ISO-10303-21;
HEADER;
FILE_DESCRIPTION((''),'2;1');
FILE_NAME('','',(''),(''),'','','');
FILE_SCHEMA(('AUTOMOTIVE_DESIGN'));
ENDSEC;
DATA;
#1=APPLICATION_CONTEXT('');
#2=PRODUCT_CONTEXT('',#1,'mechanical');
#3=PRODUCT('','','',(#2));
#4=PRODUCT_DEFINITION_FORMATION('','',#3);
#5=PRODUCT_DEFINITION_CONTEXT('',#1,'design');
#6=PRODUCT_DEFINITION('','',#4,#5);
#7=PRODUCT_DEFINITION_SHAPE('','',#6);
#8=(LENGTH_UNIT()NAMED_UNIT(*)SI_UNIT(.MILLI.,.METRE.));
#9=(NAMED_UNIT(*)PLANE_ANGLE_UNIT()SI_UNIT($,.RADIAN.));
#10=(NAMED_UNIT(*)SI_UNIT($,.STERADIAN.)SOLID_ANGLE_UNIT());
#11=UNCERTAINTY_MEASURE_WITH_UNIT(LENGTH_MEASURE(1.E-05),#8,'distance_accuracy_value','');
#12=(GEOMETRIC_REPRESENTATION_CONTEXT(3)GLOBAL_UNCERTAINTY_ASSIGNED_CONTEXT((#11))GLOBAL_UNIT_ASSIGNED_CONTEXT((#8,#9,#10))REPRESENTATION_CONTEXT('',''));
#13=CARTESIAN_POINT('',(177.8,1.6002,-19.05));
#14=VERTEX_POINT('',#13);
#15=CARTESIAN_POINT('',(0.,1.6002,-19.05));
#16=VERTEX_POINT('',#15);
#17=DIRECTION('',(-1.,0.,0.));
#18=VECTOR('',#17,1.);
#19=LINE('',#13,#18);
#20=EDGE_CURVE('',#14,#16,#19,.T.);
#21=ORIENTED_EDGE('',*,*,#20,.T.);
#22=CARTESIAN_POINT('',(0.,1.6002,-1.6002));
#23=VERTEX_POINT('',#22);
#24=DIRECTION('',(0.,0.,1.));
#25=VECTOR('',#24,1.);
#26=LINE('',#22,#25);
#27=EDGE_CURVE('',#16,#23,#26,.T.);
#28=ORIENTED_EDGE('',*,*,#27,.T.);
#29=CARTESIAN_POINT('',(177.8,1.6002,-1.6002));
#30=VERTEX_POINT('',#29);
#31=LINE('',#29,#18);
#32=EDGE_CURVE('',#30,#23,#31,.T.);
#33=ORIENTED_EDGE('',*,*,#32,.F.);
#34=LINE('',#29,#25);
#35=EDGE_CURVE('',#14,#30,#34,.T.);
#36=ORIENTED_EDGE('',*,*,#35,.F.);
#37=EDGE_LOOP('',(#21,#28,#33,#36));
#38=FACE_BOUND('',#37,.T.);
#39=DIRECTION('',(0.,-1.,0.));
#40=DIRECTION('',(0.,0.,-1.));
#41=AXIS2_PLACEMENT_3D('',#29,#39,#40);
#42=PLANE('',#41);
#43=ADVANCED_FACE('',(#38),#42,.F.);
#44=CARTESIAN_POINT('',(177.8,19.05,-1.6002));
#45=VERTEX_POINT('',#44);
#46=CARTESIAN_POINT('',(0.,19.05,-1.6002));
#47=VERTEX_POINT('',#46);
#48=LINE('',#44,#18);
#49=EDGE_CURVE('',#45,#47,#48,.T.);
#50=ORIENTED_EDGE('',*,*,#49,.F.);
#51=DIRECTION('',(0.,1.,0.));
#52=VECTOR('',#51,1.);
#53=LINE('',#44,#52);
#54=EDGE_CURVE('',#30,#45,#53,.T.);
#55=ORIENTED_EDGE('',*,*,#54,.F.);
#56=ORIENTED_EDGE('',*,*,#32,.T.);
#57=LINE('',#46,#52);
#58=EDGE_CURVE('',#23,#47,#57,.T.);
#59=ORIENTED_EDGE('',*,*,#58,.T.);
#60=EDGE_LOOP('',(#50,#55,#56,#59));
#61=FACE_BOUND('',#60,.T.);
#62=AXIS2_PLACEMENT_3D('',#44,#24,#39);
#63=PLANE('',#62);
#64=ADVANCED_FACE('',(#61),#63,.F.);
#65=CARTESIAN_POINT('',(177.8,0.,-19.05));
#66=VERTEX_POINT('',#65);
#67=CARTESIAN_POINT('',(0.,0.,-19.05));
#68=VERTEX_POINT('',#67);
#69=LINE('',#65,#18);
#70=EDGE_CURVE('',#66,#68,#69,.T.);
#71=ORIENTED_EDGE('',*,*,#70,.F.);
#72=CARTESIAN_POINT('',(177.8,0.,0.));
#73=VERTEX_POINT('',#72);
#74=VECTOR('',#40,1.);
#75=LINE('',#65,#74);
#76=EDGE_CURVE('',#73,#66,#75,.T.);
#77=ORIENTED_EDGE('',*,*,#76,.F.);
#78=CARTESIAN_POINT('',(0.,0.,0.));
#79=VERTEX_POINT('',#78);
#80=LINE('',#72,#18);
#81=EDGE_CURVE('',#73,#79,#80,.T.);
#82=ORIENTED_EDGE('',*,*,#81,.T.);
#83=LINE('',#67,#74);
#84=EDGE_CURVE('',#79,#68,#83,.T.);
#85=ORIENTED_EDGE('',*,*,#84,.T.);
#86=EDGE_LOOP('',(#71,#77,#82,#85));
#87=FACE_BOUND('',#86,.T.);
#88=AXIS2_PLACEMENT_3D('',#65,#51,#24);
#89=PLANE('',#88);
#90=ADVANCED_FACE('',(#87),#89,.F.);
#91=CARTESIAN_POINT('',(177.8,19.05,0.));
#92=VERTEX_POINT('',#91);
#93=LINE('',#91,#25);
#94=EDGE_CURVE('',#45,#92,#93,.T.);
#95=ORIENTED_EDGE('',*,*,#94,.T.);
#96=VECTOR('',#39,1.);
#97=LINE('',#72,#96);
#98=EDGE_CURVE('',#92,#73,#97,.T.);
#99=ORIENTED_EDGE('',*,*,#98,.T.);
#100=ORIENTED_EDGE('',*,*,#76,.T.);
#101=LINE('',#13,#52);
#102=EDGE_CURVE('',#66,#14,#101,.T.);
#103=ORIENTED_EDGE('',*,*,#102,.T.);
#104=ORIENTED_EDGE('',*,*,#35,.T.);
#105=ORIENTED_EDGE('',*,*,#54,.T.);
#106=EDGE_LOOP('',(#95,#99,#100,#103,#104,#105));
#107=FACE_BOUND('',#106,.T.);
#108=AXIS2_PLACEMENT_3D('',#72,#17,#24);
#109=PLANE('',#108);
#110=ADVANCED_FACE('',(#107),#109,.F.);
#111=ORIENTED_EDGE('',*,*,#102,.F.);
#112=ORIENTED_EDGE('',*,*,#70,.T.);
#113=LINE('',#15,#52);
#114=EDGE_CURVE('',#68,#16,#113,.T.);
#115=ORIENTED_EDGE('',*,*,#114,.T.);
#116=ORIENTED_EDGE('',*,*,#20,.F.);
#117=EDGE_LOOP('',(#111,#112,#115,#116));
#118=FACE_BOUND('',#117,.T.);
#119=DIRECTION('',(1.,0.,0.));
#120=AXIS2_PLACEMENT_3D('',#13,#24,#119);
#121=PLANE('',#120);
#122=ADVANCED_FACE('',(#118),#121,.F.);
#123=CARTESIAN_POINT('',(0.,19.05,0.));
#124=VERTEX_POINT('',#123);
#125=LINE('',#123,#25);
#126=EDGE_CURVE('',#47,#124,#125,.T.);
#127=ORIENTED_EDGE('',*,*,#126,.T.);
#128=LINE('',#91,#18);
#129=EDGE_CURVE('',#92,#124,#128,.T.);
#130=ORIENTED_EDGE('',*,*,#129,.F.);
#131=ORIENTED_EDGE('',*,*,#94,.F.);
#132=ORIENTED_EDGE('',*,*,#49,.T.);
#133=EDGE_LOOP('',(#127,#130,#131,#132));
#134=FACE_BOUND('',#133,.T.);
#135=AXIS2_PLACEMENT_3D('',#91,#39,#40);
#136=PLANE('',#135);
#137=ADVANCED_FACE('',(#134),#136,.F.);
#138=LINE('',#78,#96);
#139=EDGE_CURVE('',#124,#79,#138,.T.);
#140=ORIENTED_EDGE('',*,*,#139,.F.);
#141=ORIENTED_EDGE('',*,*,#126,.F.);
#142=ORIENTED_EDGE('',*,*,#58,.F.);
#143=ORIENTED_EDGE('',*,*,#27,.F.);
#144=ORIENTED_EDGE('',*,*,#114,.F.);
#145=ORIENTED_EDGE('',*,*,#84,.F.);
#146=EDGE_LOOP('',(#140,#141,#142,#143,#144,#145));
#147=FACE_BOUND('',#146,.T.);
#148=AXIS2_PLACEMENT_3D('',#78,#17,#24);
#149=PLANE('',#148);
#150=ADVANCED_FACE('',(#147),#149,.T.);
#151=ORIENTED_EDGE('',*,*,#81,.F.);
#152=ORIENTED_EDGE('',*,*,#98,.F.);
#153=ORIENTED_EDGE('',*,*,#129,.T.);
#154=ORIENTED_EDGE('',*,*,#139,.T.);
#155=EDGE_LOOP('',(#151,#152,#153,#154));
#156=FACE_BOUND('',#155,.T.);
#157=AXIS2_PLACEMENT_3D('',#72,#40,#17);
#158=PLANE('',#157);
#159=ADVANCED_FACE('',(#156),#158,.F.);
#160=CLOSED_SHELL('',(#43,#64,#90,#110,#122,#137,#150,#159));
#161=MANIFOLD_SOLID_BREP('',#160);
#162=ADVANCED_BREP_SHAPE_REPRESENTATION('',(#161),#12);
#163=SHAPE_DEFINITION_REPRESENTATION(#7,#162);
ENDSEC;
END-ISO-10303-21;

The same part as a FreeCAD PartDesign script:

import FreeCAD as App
import Part
import Sketcher
from FreeCAD import Vector
Q = App.Units.Quantity


def add_polygon(sketch, points):
    """Adds a closed chain of lines whose ends are joined by coincident constraints."""
    first, n = sketch.GeometryCount, len(points)
    for a, b in zip(points, points[1:] + points[:1]):
        sketch.addGeometry(Part.LineSegment(App.Vector(*a, 0), App.Vector(*b, 0)), False)
    for i in range(n):
        sketch.addConstraint(Sketcher.Constraint("Coincident", first + i, 2, first + (i + 1) % n, 1))

doc = App.newDocument("Part")
params = doc.addObject("Spreadsheet::Sheet", "Params")
for row, (alias, value) in enumerate([
    ("sketch1_width", "0.75 in"),
    ("sketch1_width2", "0.063 in"),
    ("pad1_length", "7 in"),
], start=1):
    params.set(f"A{row}", alias)
    params.set(f"B{row}", "=" + value)
    params.setAlias(f"B{row}", alias)

body = doc.addObject("PartDesign::Body", "Body")

# Sketch on YZ plane
sketch1 = body.newObject("Sketcher::SketchObject", "Sketch")
sketch1.AttachmentSupport = (doc.getObject("YZ_Plane"), [""])
sketch1.MapMode = "FlatFace"
add_polygon(sketch1, [(19.1, 0), (0, 0), (0, -19.1), (1.6, -19.1), (1.6, -1.6), (19.1, -1.6)])  # lines 0-5
sketch1.addConstraint(Sketcher.Constraint("Horizontal", 0))
sketch1.addConstraint(Sketcher.Constraint("Vertical", 1))
sketch1.addConstraint(Sketcher.Constraint("Horizontal", 2))
sketch1.addConstraint(Sketcher.Constraint("Vertical", 3))
sketch1.addConstraint(Sketcher.Constraint("Horizontal", 4))
sketch1.addConstraint(Sketcher.Constraint("Vertical", 5))
sketch1.addConstraint(Sketcher.Constraint("Coincident", 0, 2, -1, 1))
sketch1.addConstraint(Sketcher.Constraint("Equal", 0, 1))
sketch1.addConstraint(Sketcher.Constraint("Equal", 4, 3))
sketch1.addConstraint(Sketcher.Constraint("DistanceX", 0, 2, 0, 1, Q("0.75 in")))
sketch1.addConstraint(Sketcher.Constraint("DistanceX", 2, 1, 2, 2, Q("0.063 in")))
sketch1.setExpression("Constraints[15]", "Params.sketch1_width")
sketch1.setExpression("Constraints[16]", "Params.sketch1_width2")
pad1 = body.newObject("PartDesign::Pad", "Pad")
pad1.Profile = sketch1
pad1.setExpression("Length", "Params.pad1_length")

doc.recompute()
